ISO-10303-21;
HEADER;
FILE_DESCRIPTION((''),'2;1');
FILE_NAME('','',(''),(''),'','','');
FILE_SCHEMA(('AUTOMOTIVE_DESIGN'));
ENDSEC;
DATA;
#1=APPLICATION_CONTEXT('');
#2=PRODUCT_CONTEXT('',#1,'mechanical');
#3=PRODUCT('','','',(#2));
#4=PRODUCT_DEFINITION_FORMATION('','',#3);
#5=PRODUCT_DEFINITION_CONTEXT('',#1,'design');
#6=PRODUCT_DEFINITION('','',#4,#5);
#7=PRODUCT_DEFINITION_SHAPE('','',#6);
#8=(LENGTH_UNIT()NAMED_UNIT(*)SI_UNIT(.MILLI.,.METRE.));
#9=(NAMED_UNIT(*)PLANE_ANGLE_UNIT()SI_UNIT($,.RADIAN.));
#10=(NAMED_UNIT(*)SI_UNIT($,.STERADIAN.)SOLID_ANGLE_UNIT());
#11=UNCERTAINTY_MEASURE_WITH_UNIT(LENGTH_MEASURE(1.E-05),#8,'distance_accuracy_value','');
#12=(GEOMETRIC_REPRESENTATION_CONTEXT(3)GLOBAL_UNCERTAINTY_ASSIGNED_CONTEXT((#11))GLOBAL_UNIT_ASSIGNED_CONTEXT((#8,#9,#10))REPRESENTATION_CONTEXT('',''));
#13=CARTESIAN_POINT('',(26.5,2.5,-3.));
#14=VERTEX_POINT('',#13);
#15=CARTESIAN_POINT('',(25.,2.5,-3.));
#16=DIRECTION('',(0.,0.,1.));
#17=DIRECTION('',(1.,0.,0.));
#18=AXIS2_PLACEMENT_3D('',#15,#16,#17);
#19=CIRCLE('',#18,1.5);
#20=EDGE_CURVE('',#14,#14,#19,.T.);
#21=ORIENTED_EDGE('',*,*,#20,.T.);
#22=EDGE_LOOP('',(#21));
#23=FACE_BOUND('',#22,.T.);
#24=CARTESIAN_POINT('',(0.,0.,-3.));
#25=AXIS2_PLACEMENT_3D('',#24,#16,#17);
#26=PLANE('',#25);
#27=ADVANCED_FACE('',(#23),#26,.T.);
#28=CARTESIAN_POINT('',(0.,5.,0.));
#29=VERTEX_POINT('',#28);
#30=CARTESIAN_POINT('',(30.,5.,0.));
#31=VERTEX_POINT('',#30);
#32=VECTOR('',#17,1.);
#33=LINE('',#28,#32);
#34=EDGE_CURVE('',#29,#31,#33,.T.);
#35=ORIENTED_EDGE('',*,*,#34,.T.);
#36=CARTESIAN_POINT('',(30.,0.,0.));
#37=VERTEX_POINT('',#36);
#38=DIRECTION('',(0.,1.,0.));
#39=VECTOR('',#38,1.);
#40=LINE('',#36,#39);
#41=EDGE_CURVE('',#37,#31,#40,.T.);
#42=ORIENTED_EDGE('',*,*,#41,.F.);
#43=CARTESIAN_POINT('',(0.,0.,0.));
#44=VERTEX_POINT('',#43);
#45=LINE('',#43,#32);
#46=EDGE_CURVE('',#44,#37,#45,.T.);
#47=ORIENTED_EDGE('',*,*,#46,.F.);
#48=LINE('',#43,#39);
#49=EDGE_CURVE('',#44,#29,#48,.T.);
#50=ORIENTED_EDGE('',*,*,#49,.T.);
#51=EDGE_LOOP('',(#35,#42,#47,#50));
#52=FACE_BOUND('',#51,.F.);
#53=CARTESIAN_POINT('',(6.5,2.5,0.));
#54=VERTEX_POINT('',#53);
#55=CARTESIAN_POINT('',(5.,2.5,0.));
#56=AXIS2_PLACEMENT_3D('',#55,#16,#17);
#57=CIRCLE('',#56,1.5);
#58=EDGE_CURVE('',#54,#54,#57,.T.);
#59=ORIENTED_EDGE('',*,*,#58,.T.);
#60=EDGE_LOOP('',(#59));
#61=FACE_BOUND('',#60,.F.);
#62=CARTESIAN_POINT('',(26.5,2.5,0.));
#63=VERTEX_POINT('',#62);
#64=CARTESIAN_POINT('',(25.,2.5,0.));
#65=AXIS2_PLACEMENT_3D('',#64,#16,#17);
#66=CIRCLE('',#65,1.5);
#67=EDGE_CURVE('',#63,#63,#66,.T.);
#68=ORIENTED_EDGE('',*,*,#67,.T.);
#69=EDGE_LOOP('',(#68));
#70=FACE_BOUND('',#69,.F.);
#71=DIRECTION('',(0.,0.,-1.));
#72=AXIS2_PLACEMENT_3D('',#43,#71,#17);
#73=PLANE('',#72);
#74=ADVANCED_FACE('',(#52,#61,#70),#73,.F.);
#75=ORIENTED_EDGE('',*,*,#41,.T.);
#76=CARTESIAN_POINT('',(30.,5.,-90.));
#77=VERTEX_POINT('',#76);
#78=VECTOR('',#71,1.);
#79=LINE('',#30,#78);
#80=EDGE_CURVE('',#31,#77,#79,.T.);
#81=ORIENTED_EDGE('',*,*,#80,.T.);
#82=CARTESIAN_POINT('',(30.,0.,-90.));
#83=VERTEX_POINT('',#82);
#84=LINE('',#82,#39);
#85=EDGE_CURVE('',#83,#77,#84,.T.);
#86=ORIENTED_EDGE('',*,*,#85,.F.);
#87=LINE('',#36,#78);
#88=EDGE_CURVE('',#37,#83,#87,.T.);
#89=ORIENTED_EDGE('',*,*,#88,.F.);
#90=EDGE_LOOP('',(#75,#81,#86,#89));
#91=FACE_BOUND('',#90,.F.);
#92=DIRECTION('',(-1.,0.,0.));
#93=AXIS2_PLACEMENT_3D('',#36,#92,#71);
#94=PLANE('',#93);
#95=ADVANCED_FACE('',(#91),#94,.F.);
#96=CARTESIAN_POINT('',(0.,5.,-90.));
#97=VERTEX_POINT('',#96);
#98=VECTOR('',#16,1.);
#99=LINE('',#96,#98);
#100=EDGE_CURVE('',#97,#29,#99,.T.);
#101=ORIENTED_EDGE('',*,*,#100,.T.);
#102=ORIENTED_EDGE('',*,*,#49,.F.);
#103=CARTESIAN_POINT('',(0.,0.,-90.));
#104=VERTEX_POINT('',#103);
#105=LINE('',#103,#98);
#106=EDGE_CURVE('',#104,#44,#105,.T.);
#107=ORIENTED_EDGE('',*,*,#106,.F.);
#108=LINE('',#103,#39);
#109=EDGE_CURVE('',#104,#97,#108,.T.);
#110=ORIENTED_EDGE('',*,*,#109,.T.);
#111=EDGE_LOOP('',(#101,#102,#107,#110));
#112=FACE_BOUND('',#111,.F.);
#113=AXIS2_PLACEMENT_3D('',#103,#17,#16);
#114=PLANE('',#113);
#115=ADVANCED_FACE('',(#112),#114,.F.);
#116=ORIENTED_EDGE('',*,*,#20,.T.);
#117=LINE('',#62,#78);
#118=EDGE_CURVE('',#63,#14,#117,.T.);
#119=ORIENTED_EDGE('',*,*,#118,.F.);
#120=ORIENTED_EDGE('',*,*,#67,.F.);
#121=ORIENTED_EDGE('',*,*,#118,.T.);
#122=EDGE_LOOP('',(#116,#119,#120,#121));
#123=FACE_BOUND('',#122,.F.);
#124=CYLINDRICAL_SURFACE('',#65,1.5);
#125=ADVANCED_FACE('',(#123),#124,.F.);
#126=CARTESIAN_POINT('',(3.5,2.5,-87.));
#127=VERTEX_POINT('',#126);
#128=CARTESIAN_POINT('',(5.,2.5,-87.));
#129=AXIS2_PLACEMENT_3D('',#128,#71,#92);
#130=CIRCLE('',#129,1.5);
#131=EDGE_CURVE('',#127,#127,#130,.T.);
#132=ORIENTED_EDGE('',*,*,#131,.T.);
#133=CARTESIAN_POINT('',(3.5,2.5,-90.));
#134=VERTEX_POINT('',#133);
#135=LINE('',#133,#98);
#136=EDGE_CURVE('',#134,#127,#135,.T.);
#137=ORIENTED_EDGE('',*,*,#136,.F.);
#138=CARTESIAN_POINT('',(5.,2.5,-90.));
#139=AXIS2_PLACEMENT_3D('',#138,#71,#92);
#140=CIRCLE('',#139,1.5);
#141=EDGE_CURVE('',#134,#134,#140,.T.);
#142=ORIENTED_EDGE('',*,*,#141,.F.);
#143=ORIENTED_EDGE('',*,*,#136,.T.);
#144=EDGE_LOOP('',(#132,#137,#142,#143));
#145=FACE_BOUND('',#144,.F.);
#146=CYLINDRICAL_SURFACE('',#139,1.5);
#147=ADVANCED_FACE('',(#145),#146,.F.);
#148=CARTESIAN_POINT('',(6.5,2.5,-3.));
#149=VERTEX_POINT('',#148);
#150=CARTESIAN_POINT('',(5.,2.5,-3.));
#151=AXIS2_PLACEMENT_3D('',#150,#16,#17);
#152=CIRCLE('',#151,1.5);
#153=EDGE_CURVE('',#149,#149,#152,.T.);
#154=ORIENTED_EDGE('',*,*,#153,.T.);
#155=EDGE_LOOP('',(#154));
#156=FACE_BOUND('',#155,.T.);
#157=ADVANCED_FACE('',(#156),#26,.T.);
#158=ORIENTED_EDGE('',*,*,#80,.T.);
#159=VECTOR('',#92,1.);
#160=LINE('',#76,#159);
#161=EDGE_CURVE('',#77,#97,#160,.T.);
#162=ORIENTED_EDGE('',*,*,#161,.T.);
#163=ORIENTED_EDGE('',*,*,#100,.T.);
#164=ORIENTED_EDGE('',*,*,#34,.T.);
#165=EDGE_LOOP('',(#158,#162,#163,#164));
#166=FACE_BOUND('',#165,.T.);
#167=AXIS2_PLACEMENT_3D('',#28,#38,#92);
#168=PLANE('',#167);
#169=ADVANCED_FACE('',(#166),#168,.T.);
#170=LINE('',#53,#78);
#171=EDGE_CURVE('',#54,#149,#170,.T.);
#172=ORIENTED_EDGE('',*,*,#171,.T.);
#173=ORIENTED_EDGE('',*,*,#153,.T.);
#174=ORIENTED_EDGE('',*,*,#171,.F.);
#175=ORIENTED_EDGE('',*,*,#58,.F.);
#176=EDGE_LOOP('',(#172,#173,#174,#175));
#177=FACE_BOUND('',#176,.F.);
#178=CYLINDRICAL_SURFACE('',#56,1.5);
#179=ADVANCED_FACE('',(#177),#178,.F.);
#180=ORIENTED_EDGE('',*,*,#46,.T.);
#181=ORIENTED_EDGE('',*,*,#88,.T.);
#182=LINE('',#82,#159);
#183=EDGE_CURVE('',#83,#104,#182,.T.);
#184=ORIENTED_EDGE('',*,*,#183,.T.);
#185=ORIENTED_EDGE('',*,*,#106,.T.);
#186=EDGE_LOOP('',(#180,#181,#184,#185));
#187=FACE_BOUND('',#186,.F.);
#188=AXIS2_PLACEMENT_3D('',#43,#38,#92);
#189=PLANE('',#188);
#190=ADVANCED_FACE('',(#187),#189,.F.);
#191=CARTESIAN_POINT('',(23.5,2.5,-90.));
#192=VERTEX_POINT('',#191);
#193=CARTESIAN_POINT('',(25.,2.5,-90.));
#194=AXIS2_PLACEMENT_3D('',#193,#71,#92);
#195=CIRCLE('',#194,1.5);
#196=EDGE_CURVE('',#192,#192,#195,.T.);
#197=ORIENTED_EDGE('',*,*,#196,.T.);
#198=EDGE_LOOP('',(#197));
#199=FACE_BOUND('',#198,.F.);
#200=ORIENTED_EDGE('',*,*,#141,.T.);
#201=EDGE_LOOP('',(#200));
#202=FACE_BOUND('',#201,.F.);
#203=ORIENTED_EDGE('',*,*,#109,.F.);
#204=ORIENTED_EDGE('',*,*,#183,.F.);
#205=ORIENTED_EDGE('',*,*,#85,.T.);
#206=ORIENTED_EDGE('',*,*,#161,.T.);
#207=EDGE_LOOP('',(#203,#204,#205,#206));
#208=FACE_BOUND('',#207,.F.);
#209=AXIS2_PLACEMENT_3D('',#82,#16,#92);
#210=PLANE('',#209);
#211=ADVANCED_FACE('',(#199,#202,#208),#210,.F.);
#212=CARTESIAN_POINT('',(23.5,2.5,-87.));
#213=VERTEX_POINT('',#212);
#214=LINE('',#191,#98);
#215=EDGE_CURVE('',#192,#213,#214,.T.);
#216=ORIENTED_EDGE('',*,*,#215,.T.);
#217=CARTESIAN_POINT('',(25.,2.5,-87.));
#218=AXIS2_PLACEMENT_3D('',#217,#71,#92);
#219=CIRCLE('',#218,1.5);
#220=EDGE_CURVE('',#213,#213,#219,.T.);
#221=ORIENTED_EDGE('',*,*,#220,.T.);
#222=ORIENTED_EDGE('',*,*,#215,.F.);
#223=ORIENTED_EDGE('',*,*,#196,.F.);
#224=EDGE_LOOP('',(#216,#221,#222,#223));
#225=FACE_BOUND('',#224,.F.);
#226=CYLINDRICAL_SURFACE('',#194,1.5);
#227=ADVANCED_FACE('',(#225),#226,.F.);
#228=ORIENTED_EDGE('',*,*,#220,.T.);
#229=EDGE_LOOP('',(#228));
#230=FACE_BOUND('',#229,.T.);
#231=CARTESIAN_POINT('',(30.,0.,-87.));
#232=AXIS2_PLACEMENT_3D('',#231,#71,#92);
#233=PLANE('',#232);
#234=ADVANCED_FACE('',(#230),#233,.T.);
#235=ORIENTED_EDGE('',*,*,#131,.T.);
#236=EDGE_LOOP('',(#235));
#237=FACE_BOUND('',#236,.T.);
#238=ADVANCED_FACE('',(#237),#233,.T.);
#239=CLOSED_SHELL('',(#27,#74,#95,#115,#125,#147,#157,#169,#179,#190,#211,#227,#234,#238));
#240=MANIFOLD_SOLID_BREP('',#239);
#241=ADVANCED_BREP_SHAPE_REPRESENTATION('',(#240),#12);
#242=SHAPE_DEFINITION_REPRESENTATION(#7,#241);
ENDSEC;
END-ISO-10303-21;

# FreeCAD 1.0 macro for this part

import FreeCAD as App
import Part
import Sketcher


def add_polygon(sketch, points):
    """Adds a closed chain of lines whose ends are joined by coincident constraints."""
    first, n = sketch.GeometryCount, len(points)
    for a, b in zip(points, points[1:] + points[:1]):
        sketch.addGeometry(Part.LineSegment(App.Vector(*a, 0), App.Vector(*b, 0)), False)
    for i in range(n):
        sketch.addConstraint(Sketcher.Constraint("Coincident", first + i, 2, first + (i + 1) % n, 1))

doc = App.newDocument("Part")
params = doc.addObject("Spreadsheet::Sheet", "Params")
for row, (alias, value) in enumerate([
    ("sketch1_width", "30 mm"),
    ("sketch1_height", "90 mm"),
    ("pad1_length", "5 mm"),
    ("sketch2_diameter", "3 mm"),
    ("pocket1_length", "3 mm"),
    ("sketch3_diameter", "3 mm"),
    ("pocket2_length", "3 mm"),
], start=1):
    params.set(f"A{row}", alias)
    params.set(f"B{row}", "=" + value)
    params.setAlias(f"B{row}", alias)

body = doc.addObject("PartDesign::Body", "Body")

# Sketch on XZ plane
sketch1 = doc.addObject("Sketcher::SketchObject", "Sketch")
body.addObject(sketch1)
sketch1.AttachmentSupport = (doc.XZ_Plane, [""])
sketch1.MapMode = "FlatFace"
add_polygon(sketch1, [(0, -90), (0, 0), (30, 0), (30, -90)])  # lines 0-3
sketch1.addConstraint([
    Sketcher.Constraint("Vertical", 0),
    Sketcher.Constraint("Horizontal", 1),
    Sketcher.Constraint("Vertical", 2),
    Sketcher.Constraint("Horizontal", 3),
    Sketcher.Constraint("Coincident", 0, 2, -1, 1),
    Sketcher.Constraint("DistanceX", 1, 1, 1, 2, 30.0),
    Sketcher.Constraint("DistanceY", 0, 1, 0, 2, 90.0),
])
sketch1.setExpression("Constraints[9]", "Params.sketch1_width")
sketch1.setExpression("Constraints[10]", "Params.sketch1_height")
pad1 = doc.addObject("PartDesign::Pad", "Pad")
body.addObject(pad1)
pad1.Profile = sketch1
pad1.setExpression("Length", "Params.pad1_length")
pad1.Reversed = True

# Sketch on XY plane
sketch2 = doc.addObject("Sketcher::SketchObject", "Sketch001")
body.addObject(sketch2)
sketch2.AttachmentSupport = (doc.XY_Plane, [""])
sketch2.MapMode = "FlatFace"
sketch2.addGeometry([
    Part.Circle(App.Vector(25, 2.5, 0), App.Vector(0, 0, 1), 1.5),
    Part.Circle(App.Vector(5, 2.5, 0), App.Vector(0, 0, 1), 1.5),
], False)
sketch2.addConstraint([
    Sketcher.Constraint("Equal", 0, 1),
    Sketcher.Constraint("Horizontal", 0, 3, 1, 3),
    Sketcher.Constraint("Diameter", 0, 3.0),
    Sketcher.Constraint("DistanceX", -1, 1, 1, 3, 5.0),
    Sketcher.Constraint("DistanceY", -1, 1, 0, 3, 2.5),
    Sketcher.Constraint("DistanceX", -1, 1, 0, 3, 25.0),
])
sketch2.setExpression("Constraints[2]", "Params.sketch2_diameter")
pocket1 = doc.addObject("PartDesign::Pocket", "Pocket")
body.addObject(pocket1)
pocket1.Profile = sketch2
pocket1.setExpression("Length", "Params.pocket1_length")

# Sketch on XY plane
sketch3 = doc.addObject("Sketcher::SketchObject", "Sketch002")
body.addObject(sketch3)
sketch3.AttachmentSupport = (doc.XY_Plane, [""])
sketch3.MapMode = "FlatFace"
sketch3.AttachmentOffset = App.Placement(App.Vector(0, 0, -90), App.Rotation())
sketch3.addGeometry([
    Part.Circle(App.Vector(25, 2.5, 0), App.Vector(0, 0, 1), 1.5),
    Part.Circle(App.Vector(5, 2.5, 0), App.Vector(0, 0, 1), 1.5),
], False)
sketch3.addConstraint([
    Sketcher.Constraint("Equal", 0, 1),
    Sketcher.Constraint("Horizontal", 0, 3, 1, 3),
    Sketcher.Constraint("Diameter", 0, 3.0),
    Sketcher.Constraint("DistanceX", -1, 1, 0, 3, 25.0),
    Sketcher.Constraint("DistanceX", -1, 1, 1, 3, 5.0),
    Sketcher.Constraint("DistanceY", -1, 1, 0, 3, 2.5),
])
sketch3.setExpression("Constraints[2]", "Params.sketch3_diameter")
pocket2 = doc.addObject("PartDesign::Pocket", "Pocket001")
body.addObject(pocket2)
pocket2.Profile = sketch3
pocket2.setExpression("Length", "Params.pocket2_length")
pocket2.Reversed = True

doc.recompute()
